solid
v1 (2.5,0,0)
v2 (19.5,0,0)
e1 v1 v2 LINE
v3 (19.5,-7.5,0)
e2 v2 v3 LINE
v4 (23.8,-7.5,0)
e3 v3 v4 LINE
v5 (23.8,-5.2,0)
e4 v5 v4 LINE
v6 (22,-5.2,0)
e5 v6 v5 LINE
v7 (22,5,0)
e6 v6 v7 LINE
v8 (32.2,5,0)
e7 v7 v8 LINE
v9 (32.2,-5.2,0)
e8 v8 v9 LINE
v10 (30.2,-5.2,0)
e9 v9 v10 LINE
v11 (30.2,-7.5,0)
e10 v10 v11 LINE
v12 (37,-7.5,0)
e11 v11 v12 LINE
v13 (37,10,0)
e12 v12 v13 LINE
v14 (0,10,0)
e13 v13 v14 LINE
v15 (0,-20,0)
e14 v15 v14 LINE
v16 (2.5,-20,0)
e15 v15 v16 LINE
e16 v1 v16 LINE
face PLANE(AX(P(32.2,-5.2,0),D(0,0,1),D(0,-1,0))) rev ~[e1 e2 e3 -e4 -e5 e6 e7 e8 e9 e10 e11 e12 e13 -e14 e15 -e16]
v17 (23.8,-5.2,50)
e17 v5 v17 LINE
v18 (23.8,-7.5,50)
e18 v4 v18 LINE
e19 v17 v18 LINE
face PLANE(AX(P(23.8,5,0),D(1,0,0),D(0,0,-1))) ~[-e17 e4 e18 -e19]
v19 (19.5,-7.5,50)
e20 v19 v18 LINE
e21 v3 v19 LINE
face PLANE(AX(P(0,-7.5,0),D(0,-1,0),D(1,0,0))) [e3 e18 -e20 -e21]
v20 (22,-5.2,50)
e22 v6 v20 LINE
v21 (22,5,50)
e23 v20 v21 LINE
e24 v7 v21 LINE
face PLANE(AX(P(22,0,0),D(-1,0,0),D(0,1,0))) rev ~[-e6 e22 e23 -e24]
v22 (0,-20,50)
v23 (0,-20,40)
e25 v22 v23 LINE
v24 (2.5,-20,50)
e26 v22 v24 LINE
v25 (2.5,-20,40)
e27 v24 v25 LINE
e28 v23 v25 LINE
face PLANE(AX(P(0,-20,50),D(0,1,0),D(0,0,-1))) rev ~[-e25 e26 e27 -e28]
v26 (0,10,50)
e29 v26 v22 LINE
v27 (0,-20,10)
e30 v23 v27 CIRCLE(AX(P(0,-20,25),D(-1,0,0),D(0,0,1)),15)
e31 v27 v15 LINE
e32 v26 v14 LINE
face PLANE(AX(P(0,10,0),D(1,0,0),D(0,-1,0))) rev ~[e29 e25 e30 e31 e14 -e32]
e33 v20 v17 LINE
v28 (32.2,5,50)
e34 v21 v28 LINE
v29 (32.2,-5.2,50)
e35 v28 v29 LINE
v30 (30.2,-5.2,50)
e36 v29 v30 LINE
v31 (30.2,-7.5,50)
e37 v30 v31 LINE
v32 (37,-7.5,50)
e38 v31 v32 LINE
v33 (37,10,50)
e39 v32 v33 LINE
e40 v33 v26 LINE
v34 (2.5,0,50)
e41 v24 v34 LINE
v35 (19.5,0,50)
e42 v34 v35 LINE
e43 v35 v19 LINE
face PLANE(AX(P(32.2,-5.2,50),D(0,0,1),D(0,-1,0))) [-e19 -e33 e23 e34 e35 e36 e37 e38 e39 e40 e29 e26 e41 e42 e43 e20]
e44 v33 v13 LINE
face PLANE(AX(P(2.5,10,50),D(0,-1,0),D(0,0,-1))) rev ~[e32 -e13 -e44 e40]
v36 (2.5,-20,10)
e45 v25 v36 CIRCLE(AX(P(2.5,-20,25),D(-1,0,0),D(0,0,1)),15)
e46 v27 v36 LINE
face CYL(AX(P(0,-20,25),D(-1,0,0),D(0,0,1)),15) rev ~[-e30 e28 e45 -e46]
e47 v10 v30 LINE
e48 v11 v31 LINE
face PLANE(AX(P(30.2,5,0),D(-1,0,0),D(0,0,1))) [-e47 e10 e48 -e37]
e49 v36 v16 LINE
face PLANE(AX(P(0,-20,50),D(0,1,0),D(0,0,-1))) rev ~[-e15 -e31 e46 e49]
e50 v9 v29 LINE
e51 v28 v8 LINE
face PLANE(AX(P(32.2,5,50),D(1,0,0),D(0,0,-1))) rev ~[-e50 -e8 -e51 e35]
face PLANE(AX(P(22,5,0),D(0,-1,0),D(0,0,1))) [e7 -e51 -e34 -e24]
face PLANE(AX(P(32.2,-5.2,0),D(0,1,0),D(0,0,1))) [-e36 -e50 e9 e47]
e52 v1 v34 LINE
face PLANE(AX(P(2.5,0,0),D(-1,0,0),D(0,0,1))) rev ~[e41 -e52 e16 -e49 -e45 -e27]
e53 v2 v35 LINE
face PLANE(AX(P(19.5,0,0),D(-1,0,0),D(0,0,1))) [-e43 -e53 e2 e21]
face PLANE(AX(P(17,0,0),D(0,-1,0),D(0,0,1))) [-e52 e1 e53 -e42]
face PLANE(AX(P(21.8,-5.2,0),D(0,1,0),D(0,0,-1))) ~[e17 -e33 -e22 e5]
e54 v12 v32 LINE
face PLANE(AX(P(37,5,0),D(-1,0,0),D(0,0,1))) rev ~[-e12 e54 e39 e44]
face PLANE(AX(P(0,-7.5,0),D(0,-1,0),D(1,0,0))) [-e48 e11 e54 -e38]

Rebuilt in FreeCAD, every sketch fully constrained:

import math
import FreeCAD as App
import Part
import Sketcher

doc = App.newDocument("Part")
body = doc.addObject("PartDesign::Body", "Body")

sketch1 = body.newObject("Sketcher::SketchObject", "Sketch")
sketch1.AttachmentSupport = (doc.getObject("XY_Plane"), [""])
sketch1.MapMode = "FlatFace"
sketch1.addGeometry([
    Part.LineSegment(App.Vector(0, 10, 0), App.Vector(0, 0, 0)),
    Part.LineSegment(App.Vector(0, 0, 0), App.Vector(22, 0, 0)),
    Part.LineSegment(App.Vector(22, 0, 0), App.Vector(22, 10, 0)),
    Part.LineSegment(App.Vector(22, 10, 0), App.Vector(0, 10, 0)),
], False)
sketch1.addConstraint([
    Sketcher.Constraint("Coincident", 0, 2, 1, 1),
    Sketcher.Constraint("Coincident", 1, 2, 2, 1),
    Sketcher.Constraint("Coincident", 2, 2, 3, 1),
    Sketcher.Constraint("Coincident", 3, 2, 0, 1),
    Sketcher.Constraint("Vertical", 0),
    Sketcher.Constraint("Horizontal", 1),
    Sketcher.Constraint("Vertical", 2),
    Sketcher.Constraint("Horizontal", 3),
    Sketcher.Constraint("Coincident", 0, 2, -1, 1),
    Sketcher.Constraint("DistanceX", 1, 1, 1, 2, 22.0),
    Sketcher.Constraint("DistanceY", 0, 2, 0, 1, 10.0),
])
pad1 = body.newObject("PartDesign::Pad", "Pad")
pad1.Profile = sketch1
pad1.Length = 50

sketch2 = body.newObject("Sketcher::SketchObject", "Sketch001")
sketch2.AttachmentSupport = (doc.getObject("YZ_Plane"), [""])
sketch2.MapMode = "FlatFace"
sketch2.AttachmentOffset = App.Placement(App.Vector(0, 0, 22), App.Rotation())
sketch2.addGeometry([
    Part.LineSegment(App.Vector(10, 50, 0), App.Vector(5, 50, 0)),
    Part.LineSegment(App.Vector(5, 50, 0), App.Vector(5, 0, 0)),
    Part.LineSegment(App.Vector(5, 0, 0), App.Vector(10, 0, 0)),
    Part.LineSegment(App.Vector(10, 0, 0), App.Vector(10, 50, 0)),
], False)
sketch2.addConstraint([
    Sketcher.Constraint("Coincident", 0, 2, 1, 1),
    Sketcher.Constraint("Coincident", 1, 2, 2, 1),
    Sketcher.Constraint("Coincident", 2, 2, 3, 1),
    Sketcher.Constraint("Coincident", 3, 2, 0, 1),
    Sketcher.Constraint("Horizontal", 0),
    Sketcher.Constraint("Vertical", 1),
    Sketcher.Constraint("Horizontal", 2),
    Sketcher.Constraint("Vertical", 3),
    Sketcher.Constraint("PointOnObject", 1, 2, -1),
    Sketcher.Constraint("DistanceX", 0, 2, 0, 1, 5.0),
    Sketcher.Constraint("DistanceY", 1, 2, 1, 1, 50.0),
    Sketcher.Constraint("DistanceX", -1, 1, 0, 2, 5.0),
])
pad2 = body.newObject("PartDesign::Pad", "Pad001")
pad2.Profile = sketch2
pad2.Length = 15

sketch3 = body.newObject("Sketcher::SketchObject", "Sketch002")
sketch3.AttachmentSupport = (doc.getObject("XZ_Plane"), [""])
sketch3.MapMode = "FlatFace"
sketch3.AttachmentOffset = App.Placement(App.Vector(0, 0, -5), App.Rotation())
sketch3.addGeometry([
    Part.LineSegment(App.Vector(37, 50, 0), App.Vector(32.2, 50, 0)),
    Part.LineSegment(App.Vector(32.2, 50, 0), App.Vector(32.2, 0, 0)),
    Part.LineSegment(App.Vector(32.2, 0, 0), App.Vector(37, 0, 0)),
    Part.LineSegment(App.Vector(37, 0, 0), App.Vector(37, 50, 0)),
], False)
sketch3.addConstraint([
    Sketcher.Constraint("Coincident", 0, 2, 1, 1),
    Sketcher.Constraint("Coincident", 1, 2, 2, 1),
    Sketcher.Constraint("Coincident", 2, 2, 3, 1),
    Sketcher.Constraint("Coincident", 3, 2, 0, 1),
    Sketcher.Constraint("Horizontal", 0),
    Sketcher.Constraint("Vertical", 1),
    Sketcher.Constraint("Horizontal", 2),
    Sketcher.Constraint("Vertical", 3),
    Sketcher.Constraint("PointOnObject", 1, 2, -1),
    Sketcher.Constraint("DistanceY", 1, 2, 1, 1, 50.0),
    Sketcher.Constraint("DistanceX", 0, 2, 0, 1, 4.8),
    Sketcher.Constraint("DistanceX", -1, 1, 2, 2, 37.0),
])
pad3 = body.newObject("PartDesign::Pad", "Pad002")
pad3.Profile = sketch3
pad3.Length = 5

sketch4 = body.newObject("Sketcher::SketchObject", "Sketch003")
sketch4.AttachmentSupport = (doc.getObject("XZ_Plane"), [""])
sketch4.MapMode = "FlatFace"
sketch4.addGeometry([
    Part.LineSegment(App.Vector(17, 0, 0), App.Vector(22, 0, 0)),
    Part.LineSegment(App.Vector(22, 0, 0), App.Vector(22, 50, 0)),
    Part.LineSegment(App.Vector(22, 50, 0), App.Vector(17, 50, 0)),
    Part.LineSegment(App.Vector(17, 50, 0), App.Vector(17, 0, 0)),
    Part.LineSegment(App.Vector(37, 50, 0), App.Vector(32.2, 50, 0)),
    Part.LineSegment(App.Vector(32.2, 50, 0), App.Vector(32.2, 0, 0)),
    Part.LineSegment(App.Vector(32.2, 0, 0), App.Vector(37, 0, 0)),
    Part.LineSegment(App.Vector(37, 0, 0), App.Vector(37, 50, 0)),
], False)
sketch4.addConstraint([
    Sketcher.Constraint("Coincident", 0, 2, 1, 1),
    Sketcher.Constraint("Coincident", 1, 2, 2, 1),
    Sketcher.Constraint("Coincident", 2, 2, 3, 1),
    Sketcher.Constraint("Coincident", 3, 2, 0, 1),
    Sketcher.Constraint("Coincident", 4, 2, 5, 1),
    Sketcher.Constraint("Coincident", 5, 2, 6, 1),
    Sketcher.Constraint("Coincident", 6, 2, 7, 1),
    Sketcher.Constraint("Coincident", 7, 2, 4, 1),
    Sketcher.Constraint("Horizontal", 0),
    Sketcher.Constraint("Vertical", 1),
    Sketcher.Constraint("Horizontal", 2),
    Sketcher.Constraint("Vertical", 3),
    Sketcher.Constraint("Horizontal", 4),
    Sketcher.Constraint("Vertical", 5),
    Sketcher.Constraint("Horizontal", 6),
    Sketcher.Constraint("Vertical", 7),
    Sketcher.Constraint("PointOnObject", 0, 2, -1),
    Sketcher.Constraint("PointOnObject", 5, 2, -1),
    Sketcher.Constraint("Horizontal", 2, 2, 4, 2),
    Sketcher.Constraint("DistanceX", 0, 1, 0, 2, 5.0),
    Sketcher.Constraint("DistanceY", 1, 1, 1, 2, 50.0),
    Sketcher.Constraint("DistanceX", 4, 2, 4, 1, 4.8),
    Sketcher.Constraint("DistanceX", -1, 1, 0, 2, 22.0),
    Sketcher.Constraint("DistanceX", -1, 1, 6, 2, 37.0),
])
pad4 = body.newObject("PartDesign::Pad", "Pad003")
pad4.Profile = sketch4
pad4.Length = 10

sketch5 = body.newObject("Sketcher::SketchObject", "Sketch004")
sketch5.AttachmentSupport = (doc.getObject("YZ_Plane"), [""])
sketch5.MapMode = "FlatFace"
sketch5.AttachmentOffset = App.Placement(App.Vector(0, 0, 32.2), App.Rotation())
sketch5.addGeometry([
    Part.LineSegment(App.Vector(-10, 50, 0), App.Vector(-5.2, 50, 0)),
    Part.LineSegment(App.Vector(-5.2, 50, 0), App.Vector(-5.2, 0, 0)),
    Part.LineSegment(App.Vector(-5.2, 0, 0), App.Vector(-10, 0, 0)),
    Part.LineSegment(App.Vector(-10, 0, 0), App.Vector(-10, 50, 0)),
], False)
sketch5.addConstraint([
    Sketcher.Constraint("Coincident", 0, 2, 1, 1),
    Sketcher.Constraint("Coincident", 1, 2, 2, 1),
    Sketcher.Constraint("Coincident", 2, 2, 3, 1),
    Sketcher.Constraint("Coincident", 3, 2, 0, 1),
    Sketcher.Constraint("Horizontal", 0),
    Sketcher.Constraint("Vertical", 1),
    Sketcher.Constraint("Horizontal", 2),
    Sketcher.Constraint("Vertical", 3),
    Sketcher.Constraint("PointOnObject", 1, 2, -1),
    Sketcher.Constraint("DistanceX", 0, 1, 0, 2, 4.8),
    Sketcher.Constraint("DistanceY", 1, 2, 1, 1, 50.0),
    Sketcher.Constraint("DistanceX", 2, 2, -1, 1, 10.0),
])
pad5 = body.newObject("PartDesign::Pad", "Pad004")
pad5.Profile = sketch5
pad5.Length = 2
pad5.Reversed = True
doc.recompute()

datumplane = body.newObject("PartDesign::Plane", "DatumPlane")
datumplane.AttachmentSupport = (doc.getObject("YZ_Plane"), [""])
datumplane.MapMode = "FlatFace"
datumplane.AttachmentOffset = App.Placement(App.Vector(0, 0, 27), App.Rotation())
mirrored = body.newObject("PartDesign::Mirrored", "Mirrored")
mirrored.Originals = [pad5]
mirrored.MirrorPlane = (datumplane, [""])
body.Tip = mirrored

sketch6 = body.newObject("Sketcher::SketchObject", "Sketch005")
sketch6.AttachmentSupport = (doc.getObject("XZ_Plane"), [""])
sketch6.MapMode = "FlatFace"
sketch6.AttachmentOffset = App.Placement(App.Vector(0, 0, 10), App.Rotation())
sketch6.addGeometry([
    Part.LineSegment(App.Vector(37, 50, 0), App.Vector(17, 50, 0)),
    Part.LineSegment(App.Vector(17, 50, 0), App.Vector(17, 0, 0)),
    Part.LineSegment(App.Vector(17, 0, 0), App.Vector(37, 0, 0)),
    Part.LineSegment(App.Vector(37, 0, 0), App.Vector(37, 50, 0)),
], False)
sketch6.addConstraint([
    Sketcher.Constraint("Coincident", 0, 2, 1, 1),
    Sketcher.Constraint("Coincident", 1, 2, 2, 1),
    Sketcher.Constraint("Coincident", 2, 2, 3, 1),
    Sketcher.Constraint("Coincident", 3, 2, 0, 1),
    Sketcher.Constraint("Horizontal", 0),
    Sketcher.Constraint("Vertical", 1),
    Sketcher.Constraint("Horizontal", 2),
    Sketcher.Constraint("Vertical", 3),
    Sketcher.Constraint("PointOnObject", 1, 2, -1),
    Sketcher.Constraint("DistanceX", 0, 2, 0, 1, 20.0),
    Sketcher.Constraint("DistanceY", 1, 2, 1, 1, 50.0),
    Sketcher.Constraint("DistanceX", -1, 1, 0, 2, 17.0),
])
pocket1 = body.newObject("PartDesign::Pocket", "Pocket")
pocket1.Profile = sketch6
pocket1.Length = 2.5

sketch7 = body.newObject("Sketcher::SketchObject", "Sketch006")
sketch7.AttachmentSupport = (doc.getObject("YZ_Plane"), [""])
sketch7.MapMode = "FlatFace"
sketch7.addGeometry([
    Part.LineSegment(App.Vector(-20, 0, 0), App.Vector(-20, 50, 0)),
    Part.LineSegment(App.Vector(-20, 50, 0), App.Vector(30, 50, 0)),
    Part.LineSegment(App.Vector(30, 50, 0), App.Vector(30, 0, 0)),
    Part.LineSegment(App.Vector(30, 0, 0), App.Vector(-20, 0, 0)),
], False)
sketch7.addConstraint([
    Sketcher.Constraint("Coincident", 0, 2, 1, 1),
    Sketcher.Constraint("Coincident", 1, 2, 2, 1),
    Sketcher.Constraint("Coincident", 2, 2, 3, 1),
    Sketcher.Constraint("Coincident", 3, 2, 0, 1),
    Sketcher.Constraint("Vertical", 0),
    Sketcher.Constraint("Horizontal", 1),
    Sketcher.Constraint("Vertical", 2),
    Sketcher.Constraint("Horizontal", 3),
    Sketcher.Constraint("PointOnObject", 2, 2, -1),
    Sketcher.Constraint("Equal", 3, 0),
    Sketcher.Constraint("DistanceX", 1, 1, 1, 2, 50.0),
    Sketcher.Constraint("DistanceX", 0, 2, -1, 1, 20.0),
])
pad6 = body.newObject("PartDesign::Pad", "Pad005")
pad6.Profile = sketch7
pad6.Length = 2.5

sketch8 = body.newObject("Sketcher::SketchObject", "Sketch007")
sketch8.AttachmentSupport = (doc.getObject("YZ_Plane"), [""])
sketch8.MapMode = "FlatFace"
sketch8.addGeometry([
    Part.LineSegment(App.Vector(-20, 10, 0), App.Vector(-20, 40, 0)),
    Part.ArcOfCircle(Part.Circle(App.Vector(-20, 25, 0), App.Vector(0, 0, 1), 15), math.radians(-90), math.radians(90)),
], False)
sketch8.addConstraint([
    Sketcher.Constraint("Coincident", 0, 1, 1, 1),
    Sketcher.Constraint("Coincident", 1, 2, 0, 2),
    Sketcher.Constraint("Vertical", 0),
    Sketcher.Constraint("Vertical", 1, 3, 0, 1),
    Sketcher.Constraint("Radius", 1, 15.0),
    Sketcher.Constraint("DistanceX", 1, 3, -1, 1, 20.0),
    Sketcher.Constraint("DistanceY", -1, 1, 1, 3, 25.0),
])
pocket2 = body.newObject("PartDesign::Pocket", "Pocket001")
pocket2.Profile = sketch8
pocket2.Length = 2.5
pocket2.Reversed = True

sketch9 = body.newObject("Sketcher::SketchObject", "Sketch008")
sketch9.AttachmentSupport = (doc.getObject("YZ_Plane"), [""])
sketch9.MapMode = "FlatFace"
sketch9.AttachmentOffset = App.Placement(App.Vector(0, 0, 17), App.Rotation())
sketch9.addGeometry([
    Part.LineSegment(App.Vector(0, 0, 0), App.Vector(-7.5, 0, 0)),
    Part.LineSegment(App.Vector(-7.5, 0, 0), App.Vector(-7.5, 50, 0)),
    Part.LineSegment(App.Vector(-7.5, 50, 0), App.Vector(0, 50, 0)),
    Part.LineSegment(App.Vector(0, 50, 0), App.Vector(0, 0, 0)),
], False)
sketch9.addConstraint([
    Sketcher.Constraint("Coincident", 0, 2, 1, 1),
    Sketcher.Constraint("Coincident", 1, 2, 2, 1),
    Sketcher.Constraint("Coincident", 2, 2, 3, 1),
    Sketcher.Constraint("Coincident", 3, 2, 0, 1),
    Sketcher.Constraint("Horizontal", 0),
    Sketcher.Constraint("Vertical", 1),
    Sketcher.Constraint("Horizontal", 2),
    Sketcher.Constraint("Vertical", 3),
    Sketcher.Constraint("Coincident", 3, 2, -1, 1),
    Sketcher.Constraint("DistanceY", 1, 1, 1, 2, 50.0),
    Sketcher.Constraint("DistanceX", 0, 2, 0, 1, 7.5),
])
pocket3 = body.newObject("PartDesign::Pocket", "Pocket002")
pocket3.Profile = sketch9
pocket3.Length = 2.5
pocket3.Reversed = True

sketch10 = body.newObject("Sketcher::SketchObject", "Sketch009")
sketch10.AttachmentSupport = (doc.getObject("YZ_Plane"), [""])
sketch10.MapMode = "FlatFace"
sketch10.AttachmentOffset = App.Placement(App.Vector(0, 0, 2.5), App.Rotation())
sketch10.addGeometry([
    Part.LineSegment(App.Vector(10, 0, 0), App.Vector(30, 0, 0)),
    Part.LineSegment(App.Vector(30, 0, 0), App.Vector(30, 50, 0)),
    Part.LineSegment(App.Vector(30, 50, 0), App.Vector(10, 50, 0)),
    Part.LineSegment(App.Vector(10, 50, 0), App.Vector(10, 0, 0)),
], False)
sketch10.addConstraint([
    Sketcher.Constraint("Coincident", 0, 2, 1, 1),
    Sketcher.Constraint("Coincident", 1, 2, 2, 1),
    Sketcher.Constraint("Coincident", 2, 2, 3, 1),
    Sketcher.Constraint("Coincident", 3, 2, 0, 1),
    Sketcher.Constraint("Horizontal", 0),
    Sketcher.Constraint("Vertical", 1),
    Sketcher.Constraint("Horizontal", 2),
    Sketcher.Constraint("Vertical", 3),
    Sketcher.Constraint("PointOnObject", 0, 2, -1),
    Sketcher.Constraint("DistanceX", 0, 1, 0, 2, 20.0),
    Sketcher.Constraint("DistanceY", 1, 1, 1, 2, 50.0),
    Sketcher.Constraint("DistanceX", -1, 1, 0, 2, 30.0),
])
pocket4 = body.newObject("PartDesign::Pocket", "Pocket003")
pocket4.Profile = sketch10
pocket4.Length = 10

doc.recompute()
